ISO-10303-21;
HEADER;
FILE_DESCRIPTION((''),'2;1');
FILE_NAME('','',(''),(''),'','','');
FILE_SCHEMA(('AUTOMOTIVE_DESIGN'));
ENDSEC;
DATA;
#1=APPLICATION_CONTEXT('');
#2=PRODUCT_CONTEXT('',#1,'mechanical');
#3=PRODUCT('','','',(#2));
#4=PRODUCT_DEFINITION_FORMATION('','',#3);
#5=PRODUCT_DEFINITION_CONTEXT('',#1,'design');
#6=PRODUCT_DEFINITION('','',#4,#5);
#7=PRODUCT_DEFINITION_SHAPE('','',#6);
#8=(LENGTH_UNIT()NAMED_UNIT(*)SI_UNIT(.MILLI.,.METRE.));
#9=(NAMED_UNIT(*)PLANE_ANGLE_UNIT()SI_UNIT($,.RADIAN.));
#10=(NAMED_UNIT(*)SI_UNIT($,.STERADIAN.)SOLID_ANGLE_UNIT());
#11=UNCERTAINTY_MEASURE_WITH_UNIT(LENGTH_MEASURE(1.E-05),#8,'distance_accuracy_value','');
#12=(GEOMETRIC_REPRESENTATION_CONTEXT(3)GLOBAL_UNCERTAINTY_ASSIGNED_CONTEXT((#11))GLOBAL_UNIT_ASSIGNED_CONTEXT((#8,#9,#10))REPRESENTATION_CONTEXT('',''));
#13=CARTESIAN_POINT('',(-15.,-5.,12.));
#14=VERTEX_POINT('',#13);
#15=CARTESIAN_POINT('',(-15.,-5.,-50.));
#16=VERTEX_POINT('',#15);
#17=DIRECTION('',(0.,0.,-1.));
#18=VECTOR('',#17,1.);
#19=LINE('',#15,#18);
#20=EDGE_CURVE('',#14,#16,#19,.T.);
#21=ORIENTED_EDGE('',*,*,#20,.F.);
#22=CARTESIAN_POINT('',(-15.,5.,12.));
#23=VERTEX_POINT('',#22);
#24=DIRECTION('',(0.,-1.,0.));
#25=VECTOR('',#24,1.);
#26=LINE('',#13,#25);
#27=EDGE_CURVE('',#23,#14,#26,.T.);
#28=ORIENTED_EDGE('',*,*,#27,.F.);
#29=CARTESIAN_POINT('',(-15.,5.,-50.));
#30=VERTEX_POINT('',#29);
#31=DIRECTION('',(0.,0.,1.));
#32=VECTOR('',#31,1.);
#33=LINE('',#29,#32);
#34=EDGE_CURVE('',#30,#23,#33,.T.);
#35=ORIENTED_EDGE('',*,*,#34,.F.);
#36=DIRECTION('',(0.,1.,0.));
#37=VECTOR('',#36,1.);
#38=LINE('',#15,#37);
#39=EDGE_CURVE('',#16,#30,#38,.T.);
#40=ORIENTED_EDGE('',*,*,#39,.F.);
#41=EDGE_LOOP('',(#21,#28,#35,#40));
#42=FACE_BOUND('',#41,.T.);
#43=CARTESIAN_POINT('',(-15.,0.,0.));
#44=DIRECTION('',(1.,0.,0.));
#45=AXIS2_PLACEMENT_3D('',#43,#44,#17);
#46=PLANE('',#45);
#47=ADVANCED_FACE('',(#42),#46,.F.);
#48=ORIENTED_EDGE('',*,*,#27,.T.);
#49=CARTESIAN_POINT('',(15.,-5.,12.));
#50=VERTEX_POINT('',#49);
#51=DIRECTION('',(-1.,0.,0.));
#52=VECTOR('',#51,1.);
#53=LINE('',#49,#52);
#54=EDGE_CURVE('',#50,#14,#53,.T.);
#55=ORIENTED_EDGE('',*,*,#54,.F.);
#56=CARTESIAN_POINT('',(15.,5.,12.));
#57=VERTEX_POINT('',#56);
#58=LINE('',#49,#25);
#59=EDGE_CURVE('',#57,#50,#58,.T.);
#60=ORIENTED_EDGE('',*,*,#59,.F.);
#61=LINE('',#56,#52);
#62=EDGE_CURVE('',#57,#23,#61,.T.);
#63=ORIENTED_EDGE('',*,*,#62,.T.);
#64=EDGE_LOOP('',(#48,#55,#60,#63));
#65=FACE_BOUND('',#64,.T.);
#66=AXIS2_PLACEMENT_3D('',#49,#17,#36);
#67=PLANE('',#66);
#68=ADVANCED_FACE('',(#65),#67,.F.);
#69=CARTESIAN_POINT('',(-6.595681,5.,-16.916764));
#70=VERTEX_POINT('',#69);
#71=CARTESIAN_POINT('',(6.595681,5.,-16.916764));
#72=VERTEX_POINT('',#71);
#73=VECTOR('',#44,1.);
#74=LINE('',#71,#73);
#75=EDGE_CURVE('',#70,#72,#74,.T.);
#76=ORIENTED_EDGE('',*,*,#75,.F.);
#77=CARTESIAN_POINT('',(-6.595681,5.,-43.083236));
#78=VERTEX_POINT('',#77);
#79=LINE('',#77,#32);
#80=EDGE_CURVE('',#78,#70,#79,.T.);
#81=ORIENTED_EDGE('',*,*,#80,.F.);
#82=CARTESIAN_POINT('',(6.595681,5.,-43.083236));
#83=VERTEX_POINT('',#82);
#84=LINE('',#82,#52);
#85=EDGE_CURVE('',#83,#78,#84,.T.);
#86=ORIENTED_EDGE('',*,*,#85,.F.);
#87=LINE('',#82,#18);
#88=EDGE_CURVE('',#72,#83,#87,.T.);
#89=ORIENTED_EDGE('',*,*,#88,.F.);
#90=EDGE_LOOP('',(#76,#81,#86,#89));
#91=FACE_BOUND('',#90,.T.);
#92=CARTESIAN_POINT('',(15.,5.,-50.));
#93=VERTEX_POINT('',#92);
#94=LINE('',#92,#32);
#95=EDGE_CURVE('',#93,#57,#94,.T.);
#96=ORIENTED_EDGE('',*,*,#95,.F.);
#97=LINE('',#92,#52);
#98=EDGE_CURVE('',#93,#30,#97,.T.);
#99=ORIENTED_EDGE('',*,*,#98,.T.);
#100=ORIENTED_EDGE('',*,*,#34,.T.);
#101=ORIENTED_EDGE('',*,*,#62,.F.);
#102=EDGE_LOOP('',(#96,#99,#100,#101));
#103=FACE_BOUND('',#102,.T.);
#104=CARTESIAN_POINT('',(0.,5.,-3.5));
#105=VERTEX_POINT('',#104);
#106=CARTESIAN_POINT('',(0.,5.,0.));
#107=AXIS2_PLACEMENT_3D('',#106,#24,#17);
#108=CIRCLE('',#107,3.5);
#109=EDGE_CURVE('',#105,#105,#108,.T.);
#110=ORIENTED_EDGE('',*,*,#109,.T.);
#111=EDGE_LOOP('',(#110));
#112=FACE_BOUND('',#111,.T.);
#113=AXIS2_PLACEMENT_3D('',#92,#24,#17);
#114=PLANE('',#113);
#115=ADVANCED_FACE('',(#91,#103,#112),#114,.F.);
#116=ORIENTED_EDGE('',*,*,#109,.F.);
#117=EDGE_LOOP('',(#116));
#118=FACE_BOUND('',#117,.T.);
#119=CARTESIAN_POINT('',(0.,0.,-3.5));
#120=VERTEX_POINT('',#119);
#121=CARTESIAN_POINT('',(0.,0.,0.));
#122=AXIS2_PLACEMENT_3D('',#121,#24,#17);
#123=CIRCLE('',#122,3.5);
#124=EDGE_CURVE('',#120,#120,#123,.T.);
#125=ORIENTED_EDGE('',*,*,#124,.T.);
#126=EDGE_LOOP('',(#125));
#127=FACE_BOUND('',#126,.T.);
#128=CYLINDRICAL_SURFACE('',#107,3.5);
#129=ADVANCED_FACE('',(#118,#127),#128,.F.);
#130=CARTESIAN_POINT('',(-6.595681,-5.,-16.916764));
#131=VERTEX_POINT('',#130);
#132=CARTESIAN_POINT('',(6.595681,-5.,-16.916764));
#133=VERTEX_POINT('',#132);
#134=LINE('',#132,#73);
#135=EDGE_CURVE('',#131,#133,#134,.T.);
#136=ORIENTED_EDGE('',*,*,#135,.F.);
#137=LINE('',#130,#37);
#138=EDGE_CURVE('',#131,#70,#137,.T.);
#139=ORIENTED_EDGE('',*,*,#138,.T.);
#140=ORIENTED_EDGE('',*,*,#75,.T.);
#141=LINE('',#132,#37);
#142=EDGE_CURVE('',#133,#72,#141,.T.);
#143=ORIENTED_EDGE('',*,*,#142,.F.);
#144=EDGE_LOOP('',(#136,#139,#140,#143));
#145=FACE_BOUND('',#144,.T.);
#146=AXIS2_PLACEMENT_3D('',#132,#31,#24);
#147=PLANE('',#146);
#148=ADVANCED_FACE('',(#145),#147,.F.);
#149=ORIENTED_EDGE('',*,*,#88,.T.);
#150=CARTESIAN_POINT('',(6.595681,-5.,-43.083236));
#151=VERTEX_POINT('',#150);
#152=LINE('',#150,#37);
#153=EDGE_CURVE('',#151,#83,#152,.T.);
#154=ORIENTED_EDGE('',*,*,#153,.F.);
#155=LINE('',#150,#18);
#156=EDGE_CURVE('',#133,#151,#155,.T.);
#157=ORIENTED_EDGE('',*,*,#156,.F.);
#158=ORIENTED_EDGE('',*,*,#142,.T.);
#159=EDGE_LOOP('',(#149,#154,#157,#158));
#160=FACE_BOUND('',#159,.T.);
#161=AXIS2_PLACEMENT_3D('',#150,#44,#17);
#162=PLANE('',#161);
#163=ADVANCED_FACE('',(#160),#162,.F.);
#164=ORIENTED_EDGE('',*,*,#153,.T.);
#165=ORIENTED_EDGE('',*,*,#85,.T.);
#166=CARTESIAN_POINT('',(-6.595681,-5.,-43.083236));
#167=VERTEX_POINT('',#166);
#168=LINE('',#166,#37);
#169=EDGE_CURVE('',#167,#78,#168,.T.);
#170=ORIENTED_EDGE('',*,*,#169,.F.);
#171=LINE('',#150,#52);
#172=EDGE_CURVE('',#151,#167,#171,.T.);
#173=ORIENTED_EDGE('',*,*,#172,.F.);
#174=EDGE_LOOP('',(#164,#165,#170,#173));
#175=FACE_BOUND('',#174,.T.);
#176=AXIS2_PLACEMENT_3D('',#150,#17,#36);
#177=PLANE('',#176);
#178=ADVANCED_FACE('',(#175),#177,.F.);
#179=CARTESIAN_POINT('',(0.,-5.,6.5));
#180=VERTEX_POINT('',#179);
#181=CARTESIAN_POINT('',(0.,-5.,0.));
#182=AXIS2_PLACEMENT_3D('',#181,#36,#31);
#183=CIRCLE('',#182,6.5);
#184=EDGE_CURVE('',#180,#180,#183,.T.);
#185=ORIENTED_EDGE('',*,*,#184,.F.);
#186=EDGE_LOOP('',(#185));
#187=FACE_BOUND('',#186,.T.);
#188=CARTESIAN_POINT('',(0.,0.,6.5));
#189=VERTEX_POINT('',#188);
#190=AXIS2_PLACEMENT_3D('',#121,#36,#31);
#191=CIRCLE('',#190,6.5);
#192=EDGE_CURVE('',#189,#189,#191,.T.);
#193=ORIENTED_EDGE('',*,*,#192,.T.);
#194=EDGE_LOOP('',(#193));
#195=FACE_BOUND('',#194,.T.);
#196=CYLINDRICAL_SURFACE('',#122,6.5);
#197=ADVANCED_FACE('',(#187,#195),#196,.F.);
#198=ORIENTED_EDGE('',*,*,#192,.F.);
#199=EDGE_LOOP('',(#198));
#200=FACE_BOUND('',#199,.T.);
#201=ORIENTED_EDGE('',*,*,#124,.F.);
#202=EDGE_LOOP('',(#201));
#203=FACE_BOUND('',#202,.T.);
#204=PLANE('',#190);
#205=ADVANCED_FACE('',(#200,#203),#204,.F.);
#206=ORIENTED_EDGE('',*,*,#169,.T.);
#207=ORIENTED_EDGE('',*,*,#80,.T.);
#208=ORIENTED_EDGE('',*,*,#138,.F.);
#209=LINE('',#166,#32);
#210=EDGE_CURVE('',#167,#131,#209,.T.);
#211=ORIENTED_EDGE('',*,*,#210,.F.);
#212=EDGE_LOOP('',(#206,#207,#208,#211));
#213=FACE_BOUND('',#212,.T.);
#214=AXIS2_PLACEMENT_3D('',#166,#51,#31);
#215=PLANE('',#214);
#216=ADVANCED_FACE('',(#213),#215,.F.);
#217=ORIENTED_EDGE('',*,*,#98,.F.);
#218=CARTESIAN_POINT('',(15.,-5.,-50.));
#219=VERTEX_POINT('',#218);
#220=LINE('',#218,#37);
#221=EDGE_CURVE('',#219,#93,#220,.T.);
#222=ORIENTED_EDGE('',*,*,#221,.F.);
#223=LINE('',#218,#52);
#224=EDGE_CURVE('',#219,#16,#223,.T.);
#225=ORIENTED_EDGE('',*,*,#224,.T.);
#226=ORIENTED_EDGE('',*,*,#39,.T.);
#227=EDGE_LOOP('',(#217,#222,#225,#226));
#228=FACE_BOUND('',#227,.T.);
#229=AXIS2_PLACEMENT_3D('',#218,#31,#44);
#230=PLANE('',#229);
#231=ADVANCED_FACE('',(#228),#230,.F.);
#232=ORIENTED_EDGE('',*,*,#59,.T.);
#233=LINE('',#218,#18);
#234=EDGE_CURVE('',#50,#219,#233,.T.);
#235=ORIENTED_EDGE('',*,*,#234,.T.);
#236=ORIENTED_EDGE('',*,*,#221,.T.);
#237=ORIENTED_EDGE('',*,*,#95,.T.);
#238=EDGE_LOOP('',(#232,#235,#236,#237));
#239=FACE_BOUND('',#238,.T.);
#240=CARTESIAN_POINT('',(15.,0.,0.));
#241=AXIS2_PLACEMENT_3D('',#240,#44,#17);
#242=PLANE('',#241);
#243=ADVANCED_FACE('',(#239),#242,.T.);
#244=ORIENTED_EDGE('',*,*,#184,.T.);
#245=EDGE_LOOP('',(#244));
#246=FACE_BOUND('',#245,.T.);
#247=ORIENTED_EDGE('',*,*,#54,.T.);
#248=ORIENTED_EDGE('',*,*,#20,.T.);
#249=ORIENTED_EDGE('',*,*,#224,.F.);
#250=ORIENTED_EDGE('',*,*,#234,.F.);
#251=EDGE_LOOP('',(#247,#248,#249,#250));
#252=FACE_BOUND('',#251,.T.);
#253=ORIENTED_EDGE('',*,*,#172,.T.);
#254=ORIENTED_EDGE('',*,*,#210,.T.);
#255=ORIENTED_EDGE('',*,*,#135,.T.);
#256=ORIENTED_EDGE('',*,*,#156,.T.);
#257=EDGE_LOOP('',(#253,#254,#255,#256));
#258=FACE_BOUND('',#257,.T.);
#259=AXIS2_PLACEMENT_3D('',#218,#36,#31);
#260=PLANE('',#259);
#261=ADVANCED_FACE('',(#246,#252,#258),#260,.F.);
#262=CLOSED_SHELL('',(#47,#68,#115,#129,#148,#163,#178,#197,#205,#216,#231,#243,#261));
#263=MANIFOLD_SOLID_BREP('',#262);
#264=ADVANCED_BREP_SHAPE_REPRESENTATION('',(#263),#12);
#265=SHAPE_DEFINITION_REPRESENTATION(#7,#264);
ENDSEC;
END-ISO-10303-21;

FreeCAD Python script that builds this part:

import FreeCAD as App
import Part
import Sketcher

V = App.Vector
Q = App.Units.Quantity


def add_polygon(sketch, points):
    """Adds a closed chain of lines whose ends are joined by coincident constraints."""
    first, n = sketch.GeometryCount, len(points)
    for a, b in zip(points, points[1:] + points[:1]):
        sketch.addGeometry(Part.LineSegment(App.Vector(*a, 0), App.Vector(*b, 0)), False)
    for i in range(n):
        sketch.addConstraint(Sketcher.Constraint("Coincident", first + i, 2, first + (i + 1) % n, 1))

doc = App.newDocument("Part")
body = doc.addObject("PartDesign::Body", "Body")

# Sketch on YZ plane
sketch1 = body.newObject("Sketcher::SketchObject", "Sketch")
sketch1.AttachmentSupport = (doc.getObject("YZ_Plane"), [""])
sketch1.MapMode = "FlatFace"
add_polygon(sketch1, [(5, 12), (-5, 12), (-5, -50), (5, -50)])  # lines 0-3
sketch1.addConstraint(Sketcher.Constraint("Horizontal", 0))
sketch1.addConstraint(Sketcher.Constraint("Vertical", 1))
sketch1.addConstraint(Sketcher.Constraint("Horizontal", 2))
sketch1.addConstraint(Sketcher.Constraint("Vertical", 3))
sketch1.addConstraint(Sketcher.Constraint("DistanceX", 0, 2, 0, 1, Q("10 mm")))
sketch1.addConstraint(Sketcher.Constraint("DistanceY", 1, 2, 1, 1, Q("62 mm")))
sketch1.addConstraint(Sketcher.Constraint("DistanceX", 0, 2, -1, 1, Q("5 mm")))
sketch1.addConstraint(Sketcher.Constraint("DistanceY", -1, 1, 0, 2, Q("12 mm")))
pad1 = body.newObject("PartDesign::Pad", "Pad")
pad1.Profile = sketch1
pad1.Length = 30
pad1.Midplane = True

# Sketch on XZ plane
sketch2 = body.newObject("Sketcher::SketchObject", "Sketch001")
sketch2.AttachmentSupport = (doc.getObject("XZ_Plane"), [""])
sketch2.MapMode = "FlatFace"
sketch2.AttachmentOffset = App.Placement(V(0, 0, 5), App.Rotation())
sketch2.addGeometry(Part.Circle(V(0, 0, 0), V(0, 0, 1), 6), False)
sketch2.addConstraint(Sketcher.Constraint("Coincident", 0, 3, -1, 1))
sketch2.addConstraint(Sketcher.Constraint("Diameter", 0, Q("13 mm")))
pocket1 = body.newObject("PartDesign::Pocket", "Pocket")
pocket1.Profile = sketch2
pocket1.Length = 5

# Sketch on XZ plane
sketch3 = body.newObject("Sketcher::SketchObject", "Sketch002")
sketch3.AttachmentSupport = (doc.getObject("XZ_Plane"), [""])
sketch3.MapMode = "FlatFace"
sketch3.addGeometry(Part.Circle(V(0, 0, 0), V(0, 0, 1), 3.5), False)
sketch3.addConstraint(Sketcher.Constraint("Coincident", 0, 3, -1, 1))
sketch3.addConstraint(Sketcher.Constraint("Diameter", 0, Q("7 mm")))
pocket2 = body.newObject("PartDesign::Pocket", "Pocket001")
pocket2.Profile = sketch3
pocket2.Type = "ThroughAll"

# Sketch on XZ plane
sketch4 = body.newObject("Sketcher::SketchObject", "Sketch003")
sketch4.AttachmentSupport = (doc.getObject("XZ_Plane"), [""])
sketch4.MapMode = "FlatFace"
sketch4.AttachmentOffset = App.Placement(V(0, 0, -5), App.Rotation())
add_polygon(sketch4, [(-7, -43), (-7, -17), (7, -17), (7, -43)])  # lines 0-3
sketch4.addConstraint(Sketcher.Constraint("Vertical", 0))
sketch4.addConstraint(Sketcher.Constraint("Horizontal", 1))
sketch4.addConstraint(Sketcher.Constraint("Vertical", 2))
sketch4.addConstraint(Sketcher.Constraint("Horizontal", 3))
sketch4.addConstraint(Sketcher.Constraint("DistanceX", 1, 1, 1, 2, Q("13.191362 mm")))
sketch4.addConstraint(Sketcher.Constraint("DistanceY", 0, 1, 0, 2, Q("26.166473 mm")))
sketch4.addConstraint(Sketcher.Constraint("DistanceX", 0, 2, -1, 1, Q("6.595681 mm")))
sketch4.addConstraint(Sketcher.Constraint("DistanceY", 0, 2, -1, 1, Q("16.916764 mm")))
pocket3 = body.newObject("PartDesign::Pocket", "Pocket002")
pocket3.Profile = sketch4
pocket3.Type = "ThroughAll"
pocket3.Reversed = True

doc.recompute()
